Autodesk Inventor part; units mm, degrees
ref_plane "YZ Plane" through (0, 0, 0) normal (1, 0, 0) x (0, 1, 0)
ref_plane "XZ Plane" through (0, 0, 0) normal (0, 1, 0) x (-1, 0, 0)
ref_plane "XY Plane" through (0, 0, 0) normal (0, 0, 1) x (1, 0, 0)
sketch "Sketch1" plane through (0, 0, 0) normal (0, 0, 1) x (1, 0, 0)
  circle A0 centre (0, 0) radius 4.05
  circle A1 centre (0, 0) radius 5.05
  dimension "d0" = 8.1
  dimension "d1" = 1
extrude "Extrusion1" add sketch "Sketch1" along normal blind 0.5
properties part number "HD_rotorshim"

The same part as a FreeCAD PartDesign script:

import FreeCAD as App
import Part
import Sketcher

V = App.Vector

doc = App.newDocument("Part")
body = doc.addObject("PartDesign::Body", "Body")

# Sketch on XY plane
sketch1 = body.newObject("Sketcher::SketchObject", "Sketch")
sketch1.AttachmentSupport = (doc.getObject("XY_Plane"), [""])
sketch1.MapMode = "FlatFace"
sketch1.addGeometry([
    Part.Circle(V(0, 0, 0), V(0, 0, 1), 5.05),
    Part.Circle(V(0, 0, 0), V(0, 0, 1), 4.05),
], False)
sketch1.addConstraint([
    Sketcher.Constraint("Coincident", 0, 3, -1, 1),
    Sketcher.Constraint("Coincident", 1, 3, -1, 1),
    Sketcher.Constraint("Diameter", 1, 8.1),
    Sketcher.Constraint("Diameter", 0, 10.1),
])
pad1 = body.newObject("PartDesign::Pad", "Pad")
pad1.Profile = sketch1
pad1.Length = 0.5

doc.recompute()
